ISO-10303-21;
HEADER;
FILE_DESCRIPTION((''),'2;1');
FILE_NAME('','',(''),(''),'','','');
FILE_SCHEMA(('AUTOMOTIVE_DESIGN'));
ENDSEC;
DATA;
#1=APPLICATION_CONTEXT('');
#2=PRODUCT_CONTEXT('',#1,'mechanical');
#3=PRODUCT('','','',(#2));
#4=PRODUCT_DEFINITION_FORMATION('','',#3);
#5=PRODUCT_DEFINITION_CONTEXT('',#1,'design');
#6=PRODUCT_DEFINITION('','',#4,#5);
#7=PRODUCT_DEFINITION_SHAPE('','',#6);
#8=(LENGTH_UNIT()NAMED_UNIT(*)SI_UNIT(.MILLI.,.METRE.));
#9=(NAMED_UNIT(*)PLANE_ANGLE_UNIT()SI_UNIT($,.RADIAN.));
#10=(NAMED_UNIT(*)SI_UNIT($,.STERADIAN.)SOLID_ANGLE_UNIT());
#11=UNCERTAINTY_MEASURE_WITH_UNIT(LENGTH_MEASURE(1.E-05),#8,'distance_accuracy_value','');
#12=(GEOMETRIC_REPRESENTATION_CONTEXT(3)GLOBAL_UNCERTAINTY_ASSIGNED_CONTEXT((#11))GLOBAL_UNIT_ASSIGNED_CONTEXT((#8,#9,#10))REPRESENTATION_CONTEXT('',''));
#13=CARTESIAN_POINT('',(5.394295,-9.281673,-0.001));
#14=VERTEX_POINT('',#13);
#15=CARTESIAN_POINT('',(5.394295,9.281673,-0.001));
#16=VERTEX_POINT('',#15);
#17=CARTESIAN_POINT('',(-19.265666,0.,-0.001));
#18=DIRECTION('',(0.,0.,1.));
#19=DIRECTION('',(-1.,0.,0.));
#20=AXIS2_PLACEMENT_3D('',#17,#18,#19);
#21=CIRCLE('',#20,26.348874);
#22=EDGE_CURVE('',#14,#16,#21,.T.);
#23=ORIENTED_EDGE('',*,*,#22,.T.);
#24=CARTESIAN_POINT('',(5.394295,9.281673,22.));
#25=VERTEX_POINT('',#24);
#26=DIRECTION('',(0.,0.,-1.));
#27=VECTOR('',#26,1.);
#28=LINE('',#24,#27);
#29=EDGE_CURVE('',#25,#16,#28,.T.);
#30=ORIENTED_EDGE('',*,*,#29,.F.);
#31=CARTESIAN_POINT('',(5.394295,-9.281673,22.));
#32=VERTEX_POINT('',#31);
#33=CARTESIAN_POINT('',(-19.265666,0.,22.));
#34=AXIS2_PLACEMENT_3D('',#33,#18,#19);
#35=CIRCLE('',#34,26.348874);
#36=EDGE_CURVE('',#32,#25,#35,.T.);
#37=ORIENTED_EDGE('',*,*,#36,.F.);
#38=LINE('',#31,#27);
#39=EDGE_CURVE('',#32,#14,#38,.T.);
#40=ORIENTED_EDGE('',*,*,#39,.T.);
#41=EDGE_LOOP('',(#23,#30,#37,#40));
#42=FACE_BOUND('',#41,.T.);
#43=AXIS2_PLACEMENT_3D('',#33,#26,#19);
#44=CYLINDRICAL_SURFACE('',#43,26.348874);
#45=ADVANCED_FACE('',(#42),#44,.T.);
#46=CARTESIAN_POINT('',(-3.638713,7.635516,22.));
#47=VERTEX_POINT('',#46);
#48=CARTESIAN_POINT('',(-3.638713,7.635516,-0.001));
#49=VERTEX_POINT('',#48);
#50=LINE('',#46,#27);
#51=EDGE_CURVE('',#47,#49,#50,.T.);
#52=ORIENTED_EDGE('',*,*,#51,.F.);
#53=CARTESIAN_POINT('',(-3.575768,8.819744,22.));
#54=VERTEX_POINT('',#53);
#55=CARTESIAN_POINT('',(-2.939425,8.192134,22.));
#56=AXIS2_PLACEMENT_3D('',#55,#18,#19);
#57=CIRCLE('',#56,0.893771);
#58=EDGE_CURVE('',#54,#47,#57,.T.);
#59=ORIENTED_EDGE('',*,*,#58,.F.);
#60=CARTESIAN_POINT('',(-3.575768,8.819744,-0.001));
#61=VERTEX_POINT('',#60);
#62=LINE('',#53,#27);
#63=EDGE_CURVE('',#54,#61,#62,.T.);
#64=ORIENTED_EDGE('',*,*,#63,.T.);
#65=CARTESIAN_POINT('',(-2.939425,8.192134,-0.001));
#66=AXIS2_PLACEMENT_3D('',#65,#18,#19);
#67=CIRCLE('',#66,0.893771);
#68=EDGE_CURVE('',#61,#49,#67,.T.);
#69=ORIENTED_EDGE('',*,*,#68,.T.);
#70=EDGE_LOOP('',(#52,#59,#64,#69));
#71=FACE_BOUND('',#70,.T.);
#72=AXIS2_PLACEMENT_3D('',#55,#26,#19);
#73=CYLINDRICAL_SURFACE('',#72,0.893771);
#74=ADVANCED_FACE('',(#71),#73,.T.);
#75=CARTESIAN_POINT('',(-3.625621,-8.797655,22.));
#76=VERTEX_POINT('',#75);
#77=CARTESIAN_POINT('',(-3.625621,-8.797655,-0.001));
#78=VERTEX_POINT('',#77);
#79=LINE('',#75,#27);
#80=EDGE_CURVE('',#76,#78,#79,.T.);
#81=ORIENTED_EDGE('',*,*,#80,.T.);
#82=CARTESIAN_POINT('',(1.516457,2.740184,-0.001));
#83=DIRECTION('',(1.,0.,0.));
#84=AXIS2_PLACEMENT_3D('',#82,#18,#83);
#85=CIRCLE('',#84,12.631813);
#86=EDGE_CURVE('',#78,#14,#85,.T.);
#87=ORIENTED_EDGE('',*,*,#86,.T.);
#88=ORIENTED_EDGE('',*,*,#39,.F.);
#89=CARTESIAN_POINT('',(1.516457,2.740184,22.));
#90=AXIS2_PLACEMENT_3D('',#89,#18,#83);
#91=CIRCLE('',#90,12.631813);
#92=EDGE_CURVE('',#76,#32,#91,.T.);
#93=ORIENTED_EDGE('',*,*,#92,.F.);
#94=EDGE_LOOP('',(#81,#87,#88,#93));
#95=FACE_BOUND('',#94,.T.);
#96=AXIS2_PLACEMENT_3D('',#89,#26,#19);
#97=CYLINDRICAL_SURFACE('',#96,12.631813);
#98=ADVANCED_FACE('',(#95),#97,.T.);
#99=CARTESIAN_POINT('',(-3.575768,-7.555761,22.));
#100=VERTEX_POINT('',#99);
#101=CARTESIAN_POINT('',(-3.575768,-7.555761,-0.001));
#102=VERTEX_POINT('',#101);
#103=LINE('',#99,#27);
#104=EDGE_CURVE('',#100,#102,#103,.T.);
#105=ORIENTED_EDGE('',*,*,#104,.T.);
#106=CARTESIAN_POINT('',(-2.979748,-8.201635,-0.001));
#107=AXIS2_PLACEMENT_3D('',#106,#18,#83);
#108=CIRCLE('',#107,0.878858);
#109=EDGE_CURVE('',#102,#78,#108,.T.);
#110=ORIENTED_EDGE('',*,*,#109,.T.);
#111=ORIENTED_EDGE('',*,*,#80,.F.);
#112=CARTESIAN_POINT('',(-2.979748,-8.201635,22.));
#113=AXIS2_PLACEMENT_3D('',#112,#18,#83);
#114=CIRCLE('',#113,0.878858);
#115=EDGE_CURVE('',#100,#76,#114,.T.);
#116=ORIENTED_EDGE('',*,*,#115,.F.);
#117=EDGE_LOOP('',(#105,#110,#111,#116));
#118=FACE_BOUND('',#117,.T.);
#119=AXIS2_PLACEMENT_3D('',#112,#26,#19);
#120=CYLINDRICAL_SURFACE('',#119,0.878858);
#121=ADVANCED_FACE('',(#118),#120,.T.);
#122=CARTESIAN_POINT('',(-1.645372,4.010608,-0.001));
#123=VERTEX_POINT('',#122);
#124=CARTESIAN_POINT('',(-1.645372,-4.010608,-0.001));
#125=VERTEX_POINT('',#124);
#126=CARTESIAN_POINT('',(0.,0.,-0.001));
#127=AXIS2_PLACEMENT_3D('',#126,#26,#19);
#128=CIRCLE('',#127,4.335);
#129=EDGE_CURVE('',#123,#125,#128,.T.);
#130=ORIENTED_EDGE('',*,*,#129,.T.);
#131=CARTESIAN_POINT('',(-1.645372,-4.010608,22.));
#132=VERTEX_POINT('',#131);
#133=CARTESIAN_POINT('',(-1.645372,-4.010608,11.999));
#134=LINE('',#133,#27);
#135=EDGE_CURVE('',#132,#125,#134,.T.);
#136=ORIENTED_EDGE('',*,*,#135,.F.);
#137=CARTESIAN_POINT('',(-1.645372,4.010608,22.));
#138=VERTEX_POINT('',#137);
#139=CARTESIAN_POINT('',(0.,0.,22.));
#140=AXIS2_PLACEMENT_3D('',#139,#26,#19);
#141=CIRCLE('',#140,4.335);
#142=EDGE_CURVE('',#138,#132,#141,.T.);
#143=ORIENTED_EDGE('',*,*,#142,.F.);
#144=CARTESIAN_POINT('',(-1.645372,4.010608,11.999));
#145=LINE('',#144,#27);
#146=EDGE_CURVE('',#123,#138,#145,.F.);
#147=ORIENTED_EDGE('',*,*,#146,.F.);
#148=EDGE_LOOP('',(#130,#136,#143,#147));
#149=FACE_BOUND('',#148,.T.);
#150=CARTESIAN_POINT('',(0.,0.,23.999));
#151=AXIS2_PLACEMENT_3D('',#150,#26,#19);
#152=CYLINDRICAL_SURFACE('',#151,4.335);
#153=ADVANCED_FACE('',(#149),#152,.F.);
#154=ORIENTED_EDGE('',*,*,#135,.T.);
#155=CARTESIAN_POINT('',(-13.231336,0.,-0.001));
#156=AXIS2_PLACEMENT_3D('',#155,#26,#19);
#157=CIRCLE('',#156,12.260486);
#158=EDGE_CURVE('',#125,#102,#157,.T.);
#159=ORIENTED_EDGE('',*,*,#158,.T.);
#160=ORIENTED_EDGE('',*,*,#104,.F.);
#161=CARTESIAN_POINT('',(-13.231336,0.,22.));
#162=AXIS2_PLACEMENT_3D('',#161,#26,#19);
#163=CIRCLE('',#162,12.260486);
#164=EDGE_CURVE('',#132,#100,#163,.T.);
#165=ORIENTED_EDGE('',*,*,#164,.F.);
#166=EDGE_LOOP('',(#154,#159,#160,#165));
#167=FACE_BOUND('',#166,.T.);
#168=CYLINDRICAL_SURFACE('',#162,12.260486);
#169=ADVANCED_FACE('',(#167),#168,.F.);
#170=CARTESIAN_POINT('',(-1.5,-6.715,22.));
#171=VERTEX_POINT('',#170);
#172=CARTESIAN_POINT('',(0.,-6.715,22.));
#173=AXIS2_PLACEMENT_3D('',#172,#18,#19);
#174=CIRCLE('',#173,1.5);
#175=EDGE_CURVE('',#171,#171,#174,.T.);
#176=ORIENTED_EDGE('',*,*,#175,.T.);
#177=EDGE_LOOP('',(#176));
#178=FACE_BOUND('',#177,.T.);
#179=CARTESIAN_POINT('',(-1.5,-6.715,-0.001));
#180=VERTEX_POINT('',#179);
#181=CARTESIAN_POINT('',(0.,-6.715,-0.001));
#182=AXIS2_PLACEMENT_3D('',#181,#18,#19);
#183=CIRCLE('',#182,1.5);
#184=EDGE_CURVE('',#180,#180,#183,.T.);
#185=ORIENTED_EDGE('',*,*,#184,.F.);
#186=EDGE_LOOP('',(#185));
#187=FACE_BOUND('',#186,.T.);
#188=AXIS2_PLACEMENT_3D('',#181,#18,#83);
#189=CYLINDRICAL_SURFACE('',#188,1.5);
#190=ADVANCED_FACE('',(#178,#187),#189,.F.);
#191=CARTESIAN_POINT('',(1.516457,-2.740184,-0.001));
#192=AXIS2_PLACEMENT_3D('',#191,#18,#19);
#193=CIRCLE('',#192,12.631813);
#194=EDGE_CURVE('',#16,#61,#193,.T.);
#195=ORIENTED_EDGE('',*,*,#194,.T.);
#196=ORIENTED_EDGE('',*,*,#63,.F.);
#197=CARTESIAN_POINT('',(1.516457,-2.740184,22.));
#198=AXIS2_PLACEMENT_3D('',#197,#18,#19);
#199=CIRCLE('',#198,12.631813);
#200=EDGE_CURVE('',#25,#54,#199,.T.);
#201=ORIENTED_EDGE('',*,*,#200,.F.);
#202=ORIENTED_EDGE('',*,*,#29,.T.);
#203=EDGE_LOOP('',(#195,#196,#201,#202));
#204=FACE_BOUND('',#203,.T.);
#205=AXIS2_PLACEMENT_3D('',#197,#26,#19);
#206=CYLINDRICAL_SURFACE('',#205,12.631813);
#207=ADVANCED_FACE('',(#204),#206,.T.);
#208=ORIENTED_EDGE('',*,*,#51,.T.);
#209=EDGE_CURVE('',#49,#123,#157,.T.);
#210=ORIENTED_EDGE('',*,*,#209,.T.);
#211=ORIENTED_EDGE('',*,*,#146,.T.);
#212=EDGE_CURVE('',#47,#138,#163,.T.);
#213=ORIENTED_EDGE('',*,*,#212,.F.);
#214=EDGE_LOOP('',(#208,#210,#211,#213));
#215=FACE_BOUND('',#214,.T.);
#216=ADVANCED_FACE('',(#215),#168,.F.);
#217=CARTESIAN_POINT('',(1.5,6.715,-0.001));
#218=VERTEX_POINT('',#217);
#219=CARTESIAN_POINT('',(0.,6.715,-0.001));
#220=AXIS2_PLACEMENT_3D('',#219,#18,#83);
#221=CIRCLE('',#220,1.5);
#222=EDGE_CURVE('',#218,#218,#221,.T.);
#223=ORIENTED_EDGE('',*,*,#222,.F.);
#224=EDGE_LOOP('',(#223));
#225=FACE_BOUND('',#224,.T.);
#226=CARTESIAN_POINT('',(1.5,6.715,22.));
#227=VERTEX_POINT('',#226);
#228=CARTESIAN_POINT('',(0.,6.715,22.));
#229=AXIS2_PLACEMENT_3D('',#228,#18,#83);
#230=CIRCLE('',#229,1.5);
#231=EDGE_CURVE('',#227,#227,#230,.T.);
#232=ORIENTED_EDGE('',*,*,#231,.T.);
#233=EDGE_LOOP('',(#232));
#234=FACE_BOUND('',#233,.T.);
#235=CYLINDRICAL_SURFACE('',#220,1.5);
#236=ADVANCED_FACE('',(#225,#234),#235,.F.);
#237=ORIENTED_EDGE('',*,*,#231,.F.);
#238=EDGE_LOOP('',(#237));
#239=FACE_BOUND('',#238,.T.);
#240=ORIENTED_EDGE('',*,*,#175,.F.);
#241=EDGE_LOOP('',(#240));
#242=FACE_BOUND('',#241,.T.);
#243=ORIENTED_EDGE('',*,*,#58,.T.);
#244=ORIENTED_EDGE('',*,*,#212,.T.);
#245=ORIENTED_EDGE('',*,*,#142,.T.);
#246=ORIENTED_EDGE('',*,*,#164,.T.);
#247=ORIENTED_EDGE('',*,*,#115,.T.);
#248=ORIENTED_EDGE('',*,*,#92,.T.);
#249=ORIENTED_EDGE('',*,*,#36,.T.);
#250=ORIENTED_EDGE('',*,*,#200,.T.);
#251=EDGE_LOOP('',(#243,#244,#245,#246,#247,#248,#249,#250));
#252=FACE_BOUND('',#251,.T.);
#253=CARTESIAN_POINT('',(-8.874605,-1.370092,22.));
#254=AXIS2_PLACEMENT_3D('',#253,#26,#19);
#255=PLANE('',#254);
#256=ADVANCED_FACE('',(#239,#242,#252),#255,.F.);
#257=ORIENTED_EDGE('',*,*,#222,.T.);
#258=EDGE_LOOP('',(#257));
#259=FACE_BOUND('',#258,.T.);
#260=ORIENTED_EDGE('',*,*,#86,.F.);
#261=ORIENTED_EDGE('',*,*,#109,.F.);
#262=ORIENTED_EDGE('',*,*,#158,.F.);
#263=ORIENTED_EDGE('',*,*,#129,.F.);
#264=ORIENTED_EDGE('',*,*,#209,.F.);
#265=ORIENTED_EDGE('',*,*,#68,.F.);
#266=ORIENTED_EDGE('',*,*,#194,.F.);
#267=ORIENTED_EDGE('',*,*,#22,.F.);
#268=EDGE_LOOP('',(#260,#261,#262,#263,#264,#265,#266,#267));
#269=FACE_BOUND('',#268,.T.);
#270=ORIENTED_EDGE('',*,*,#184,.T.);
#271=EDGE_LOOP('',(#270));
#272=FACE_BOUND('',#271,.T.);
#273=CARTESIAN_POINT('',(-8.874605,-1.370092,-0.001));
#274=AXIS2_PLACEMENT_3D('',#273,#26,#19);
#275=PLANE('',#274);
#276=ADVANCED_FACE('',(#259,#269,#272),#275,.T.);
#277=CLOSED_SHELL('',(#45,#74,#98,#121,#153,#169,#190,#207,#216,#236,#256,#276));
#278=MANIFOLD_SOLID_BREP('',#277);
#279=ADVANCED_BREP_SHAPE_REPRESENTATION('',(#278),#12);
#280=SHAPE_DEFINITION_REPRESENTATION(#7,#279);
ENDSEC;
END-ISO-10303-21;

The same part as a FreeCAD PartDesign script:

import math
import FreeCAD as App
import Part
import Sketcher
from FreeCAD import Vector
Q = App.Units.Quantity

doc = App.newDocument("Part")
body = doc.addObject("PartDesign::Body", "Body")

sketch1 = body.newObject("Sketcher::SketchObject", "Sketch")
sketch1.AttachmentSupport = (doc.getObject("XY_Plane"), [""])
sketch1.MapMode = "FlatFace"
sketch1.addGeometry([
    Part.ArcOfCircle(Part.Circle(Vector(-19.265666, 0, 0), Vector(0, 0, 1), 26.348874), math.radians(-20.625654), math.radians(20.625654)),
    Part.ArcOfCircle(Part.Circle(Vector(1.516457, -2.740184, 0), Vector(0, 0, 1), 12.631813), math.radians(72.122082), math.radians(113.773806)),
    Part.ArcOfCircle(Part.Circle(Vector(-2.939425, 8.192134, 0), Vector(0, 0, 1), 0.893771), math.radians(135.395831), math.radians(218.519017)),
    Part.ArcOfCircle(Part.Circle(Vector(-13.231336, 0, 0), Vector(0, 0, 1), 12.260486), math.radians(-38.044209), math.radians(38.519017)),
    Part.ArcOfCircle(Part.Circle(Vector(-2.979748, -8.201635, 0), Vector(0, 0, 1), 0.878858), math.radians(132.701212), math.radians(222.701212)),
    Part.ArcOfCircle(Part.Circle(Vector(1.516457, 2.740184, 0), Vector(0, 0, 1), 12.631813), math.radians(-114.021136), math.radians(-72.122082)),
], False)
sketch1.addConstraint([
    Sketcher.Constraint("Coincident", 0, 2, 1, 1),
    Sketcher.Constraint("Coincident", 1, 2, 2, 1),
    Sketcher.Constraint("Tangent", 2, 2, 3, 2),
    Sketcher.Constraint("Coincident", 3, 1, 4, 1),
    Sketcher.Constraint("Coincident", 4, 2, 5, 1),
    Sketcher.Constraint("Coincident", 5, 2, 0, 1),
    Sketcher.Constraint("Equal", 1, 5),
    Sketcher.Constraint("Symmetric", 1, 3, 5, 3, -1),
    Sketcher.Constraint("PointOnObject", 0, 3, -1),
    Sketcher.Constraint("PointOnObject", 3, 3, -1),
    Sketcher.Constraint("Vertical", 1, 2, 3, 1),
    Sketcher.Constraint("Radius", 2, Q("0.893771 mm")),
    Sketcher.Constraint("Radius", 4, Q("0.878858 mm")),
    Sketcher.Constraint("Radius", 0, Q("26.348874 mm")),
    Sketcher.Constraint("Radius", 1, Q("12.631813 mm")),
    Sketcher.Constraint("Radius", 3, Q("12.260486 mm")),
    Sketcher.Constraint("DistanceY", 1, 3, 2, 2, Q("10.375701 mm")),
    Sketcher.Constraint("DistanceY", 3, 1, -1, 1, Q("7.555761 mm")),
    Sketcher.Constraint("DistanceX", 4, 2, -1, 1, Q("3.625621 mm")),
    Sketcher.Constraint("DistanceX", 2, 3, 1, 3, Q("4.455882 mm")),
    Sketcher.Constraint("DistanceX", 0, 3, 2, 3, Q("16.326241 mm")),
    Sketcher.Constraint("DistanceY", 4, 3, 1, 3, Q("5.461451 mm")),
])
pad1 = body.newObject("PartDesign::Pad", "Pad")
pad1.Profile = sketch1
pad1.Type = "TwoLengths"
pad1.Length = 22
pad1.Length2 = 0.001

sketch2 = body.newObject("Sketcher::SketchObject", "Sketch001")
sketch2.AttachmentSupport = (doc.getObject("XY_Plane"), [""])
sketch2.MapMode = "FlatFace"
sketch2.AttachmentOffset = App.Placement(Vector(0, 0, 22), App.Rotation())
sketch2.addGeometry([
    Part.Circle(Vector(0, 6.715, 0), Vector(0, 0, 1), 1.5),
    Part.Circle(Vector(0, -6.715, 0), Vector(0, 0, 1), 1.5),
], False)
sketch2.addConstraint([
    Sketcher.Constraint("Equal", 0, 1),
    Sketcher.Constraint("Symmetric", 0, 3, 1, 3, -1, 1),
    Sketcher.Constraint("PointOnObject", 0, 3, -2),
    Sketcher.Constraint("Diameter", 0, Q("3 mm")),
    Sketcher.Constraint("DistanceY", 1, 3, 0, 3, Q("13.43 mm")),
])
pocket1 = body.newObject("PartDesign::Pocket", "Pocket")
pocket1.Profile = sketch2
pocket1.Type = "ThroughAll"

sketch3 = body.newObject("Sketcher::SketchObject", "Sketch002")
sketch3.AttachmentSupport = (doc.getObject("XY_Plane"), [""])
sketch3.MapMode = "FlatFace"
sketch3.AttachmentOffset = App.Placement(Vector(0, 0, -0.001), App.Rotation())
sketch3.addGeometry(Part.Circle(Vector(0, 0, 0), Vector(0, 0, 1), 4.335), False)
sketch3.addConstraint([
    Sketcher.Constraint("Coincident", 0, 3, -1, 1),
    Sketcher.Constraint("Diameter", 0, Q("8.67 mm")),
])
pocket2 = body.newObject("PartDesign::Pocket", "Pocket001")
pocket2.Profile = sketch3
pocket2.Length = 24
pocket2.Reversed = True

doc.recompute()
